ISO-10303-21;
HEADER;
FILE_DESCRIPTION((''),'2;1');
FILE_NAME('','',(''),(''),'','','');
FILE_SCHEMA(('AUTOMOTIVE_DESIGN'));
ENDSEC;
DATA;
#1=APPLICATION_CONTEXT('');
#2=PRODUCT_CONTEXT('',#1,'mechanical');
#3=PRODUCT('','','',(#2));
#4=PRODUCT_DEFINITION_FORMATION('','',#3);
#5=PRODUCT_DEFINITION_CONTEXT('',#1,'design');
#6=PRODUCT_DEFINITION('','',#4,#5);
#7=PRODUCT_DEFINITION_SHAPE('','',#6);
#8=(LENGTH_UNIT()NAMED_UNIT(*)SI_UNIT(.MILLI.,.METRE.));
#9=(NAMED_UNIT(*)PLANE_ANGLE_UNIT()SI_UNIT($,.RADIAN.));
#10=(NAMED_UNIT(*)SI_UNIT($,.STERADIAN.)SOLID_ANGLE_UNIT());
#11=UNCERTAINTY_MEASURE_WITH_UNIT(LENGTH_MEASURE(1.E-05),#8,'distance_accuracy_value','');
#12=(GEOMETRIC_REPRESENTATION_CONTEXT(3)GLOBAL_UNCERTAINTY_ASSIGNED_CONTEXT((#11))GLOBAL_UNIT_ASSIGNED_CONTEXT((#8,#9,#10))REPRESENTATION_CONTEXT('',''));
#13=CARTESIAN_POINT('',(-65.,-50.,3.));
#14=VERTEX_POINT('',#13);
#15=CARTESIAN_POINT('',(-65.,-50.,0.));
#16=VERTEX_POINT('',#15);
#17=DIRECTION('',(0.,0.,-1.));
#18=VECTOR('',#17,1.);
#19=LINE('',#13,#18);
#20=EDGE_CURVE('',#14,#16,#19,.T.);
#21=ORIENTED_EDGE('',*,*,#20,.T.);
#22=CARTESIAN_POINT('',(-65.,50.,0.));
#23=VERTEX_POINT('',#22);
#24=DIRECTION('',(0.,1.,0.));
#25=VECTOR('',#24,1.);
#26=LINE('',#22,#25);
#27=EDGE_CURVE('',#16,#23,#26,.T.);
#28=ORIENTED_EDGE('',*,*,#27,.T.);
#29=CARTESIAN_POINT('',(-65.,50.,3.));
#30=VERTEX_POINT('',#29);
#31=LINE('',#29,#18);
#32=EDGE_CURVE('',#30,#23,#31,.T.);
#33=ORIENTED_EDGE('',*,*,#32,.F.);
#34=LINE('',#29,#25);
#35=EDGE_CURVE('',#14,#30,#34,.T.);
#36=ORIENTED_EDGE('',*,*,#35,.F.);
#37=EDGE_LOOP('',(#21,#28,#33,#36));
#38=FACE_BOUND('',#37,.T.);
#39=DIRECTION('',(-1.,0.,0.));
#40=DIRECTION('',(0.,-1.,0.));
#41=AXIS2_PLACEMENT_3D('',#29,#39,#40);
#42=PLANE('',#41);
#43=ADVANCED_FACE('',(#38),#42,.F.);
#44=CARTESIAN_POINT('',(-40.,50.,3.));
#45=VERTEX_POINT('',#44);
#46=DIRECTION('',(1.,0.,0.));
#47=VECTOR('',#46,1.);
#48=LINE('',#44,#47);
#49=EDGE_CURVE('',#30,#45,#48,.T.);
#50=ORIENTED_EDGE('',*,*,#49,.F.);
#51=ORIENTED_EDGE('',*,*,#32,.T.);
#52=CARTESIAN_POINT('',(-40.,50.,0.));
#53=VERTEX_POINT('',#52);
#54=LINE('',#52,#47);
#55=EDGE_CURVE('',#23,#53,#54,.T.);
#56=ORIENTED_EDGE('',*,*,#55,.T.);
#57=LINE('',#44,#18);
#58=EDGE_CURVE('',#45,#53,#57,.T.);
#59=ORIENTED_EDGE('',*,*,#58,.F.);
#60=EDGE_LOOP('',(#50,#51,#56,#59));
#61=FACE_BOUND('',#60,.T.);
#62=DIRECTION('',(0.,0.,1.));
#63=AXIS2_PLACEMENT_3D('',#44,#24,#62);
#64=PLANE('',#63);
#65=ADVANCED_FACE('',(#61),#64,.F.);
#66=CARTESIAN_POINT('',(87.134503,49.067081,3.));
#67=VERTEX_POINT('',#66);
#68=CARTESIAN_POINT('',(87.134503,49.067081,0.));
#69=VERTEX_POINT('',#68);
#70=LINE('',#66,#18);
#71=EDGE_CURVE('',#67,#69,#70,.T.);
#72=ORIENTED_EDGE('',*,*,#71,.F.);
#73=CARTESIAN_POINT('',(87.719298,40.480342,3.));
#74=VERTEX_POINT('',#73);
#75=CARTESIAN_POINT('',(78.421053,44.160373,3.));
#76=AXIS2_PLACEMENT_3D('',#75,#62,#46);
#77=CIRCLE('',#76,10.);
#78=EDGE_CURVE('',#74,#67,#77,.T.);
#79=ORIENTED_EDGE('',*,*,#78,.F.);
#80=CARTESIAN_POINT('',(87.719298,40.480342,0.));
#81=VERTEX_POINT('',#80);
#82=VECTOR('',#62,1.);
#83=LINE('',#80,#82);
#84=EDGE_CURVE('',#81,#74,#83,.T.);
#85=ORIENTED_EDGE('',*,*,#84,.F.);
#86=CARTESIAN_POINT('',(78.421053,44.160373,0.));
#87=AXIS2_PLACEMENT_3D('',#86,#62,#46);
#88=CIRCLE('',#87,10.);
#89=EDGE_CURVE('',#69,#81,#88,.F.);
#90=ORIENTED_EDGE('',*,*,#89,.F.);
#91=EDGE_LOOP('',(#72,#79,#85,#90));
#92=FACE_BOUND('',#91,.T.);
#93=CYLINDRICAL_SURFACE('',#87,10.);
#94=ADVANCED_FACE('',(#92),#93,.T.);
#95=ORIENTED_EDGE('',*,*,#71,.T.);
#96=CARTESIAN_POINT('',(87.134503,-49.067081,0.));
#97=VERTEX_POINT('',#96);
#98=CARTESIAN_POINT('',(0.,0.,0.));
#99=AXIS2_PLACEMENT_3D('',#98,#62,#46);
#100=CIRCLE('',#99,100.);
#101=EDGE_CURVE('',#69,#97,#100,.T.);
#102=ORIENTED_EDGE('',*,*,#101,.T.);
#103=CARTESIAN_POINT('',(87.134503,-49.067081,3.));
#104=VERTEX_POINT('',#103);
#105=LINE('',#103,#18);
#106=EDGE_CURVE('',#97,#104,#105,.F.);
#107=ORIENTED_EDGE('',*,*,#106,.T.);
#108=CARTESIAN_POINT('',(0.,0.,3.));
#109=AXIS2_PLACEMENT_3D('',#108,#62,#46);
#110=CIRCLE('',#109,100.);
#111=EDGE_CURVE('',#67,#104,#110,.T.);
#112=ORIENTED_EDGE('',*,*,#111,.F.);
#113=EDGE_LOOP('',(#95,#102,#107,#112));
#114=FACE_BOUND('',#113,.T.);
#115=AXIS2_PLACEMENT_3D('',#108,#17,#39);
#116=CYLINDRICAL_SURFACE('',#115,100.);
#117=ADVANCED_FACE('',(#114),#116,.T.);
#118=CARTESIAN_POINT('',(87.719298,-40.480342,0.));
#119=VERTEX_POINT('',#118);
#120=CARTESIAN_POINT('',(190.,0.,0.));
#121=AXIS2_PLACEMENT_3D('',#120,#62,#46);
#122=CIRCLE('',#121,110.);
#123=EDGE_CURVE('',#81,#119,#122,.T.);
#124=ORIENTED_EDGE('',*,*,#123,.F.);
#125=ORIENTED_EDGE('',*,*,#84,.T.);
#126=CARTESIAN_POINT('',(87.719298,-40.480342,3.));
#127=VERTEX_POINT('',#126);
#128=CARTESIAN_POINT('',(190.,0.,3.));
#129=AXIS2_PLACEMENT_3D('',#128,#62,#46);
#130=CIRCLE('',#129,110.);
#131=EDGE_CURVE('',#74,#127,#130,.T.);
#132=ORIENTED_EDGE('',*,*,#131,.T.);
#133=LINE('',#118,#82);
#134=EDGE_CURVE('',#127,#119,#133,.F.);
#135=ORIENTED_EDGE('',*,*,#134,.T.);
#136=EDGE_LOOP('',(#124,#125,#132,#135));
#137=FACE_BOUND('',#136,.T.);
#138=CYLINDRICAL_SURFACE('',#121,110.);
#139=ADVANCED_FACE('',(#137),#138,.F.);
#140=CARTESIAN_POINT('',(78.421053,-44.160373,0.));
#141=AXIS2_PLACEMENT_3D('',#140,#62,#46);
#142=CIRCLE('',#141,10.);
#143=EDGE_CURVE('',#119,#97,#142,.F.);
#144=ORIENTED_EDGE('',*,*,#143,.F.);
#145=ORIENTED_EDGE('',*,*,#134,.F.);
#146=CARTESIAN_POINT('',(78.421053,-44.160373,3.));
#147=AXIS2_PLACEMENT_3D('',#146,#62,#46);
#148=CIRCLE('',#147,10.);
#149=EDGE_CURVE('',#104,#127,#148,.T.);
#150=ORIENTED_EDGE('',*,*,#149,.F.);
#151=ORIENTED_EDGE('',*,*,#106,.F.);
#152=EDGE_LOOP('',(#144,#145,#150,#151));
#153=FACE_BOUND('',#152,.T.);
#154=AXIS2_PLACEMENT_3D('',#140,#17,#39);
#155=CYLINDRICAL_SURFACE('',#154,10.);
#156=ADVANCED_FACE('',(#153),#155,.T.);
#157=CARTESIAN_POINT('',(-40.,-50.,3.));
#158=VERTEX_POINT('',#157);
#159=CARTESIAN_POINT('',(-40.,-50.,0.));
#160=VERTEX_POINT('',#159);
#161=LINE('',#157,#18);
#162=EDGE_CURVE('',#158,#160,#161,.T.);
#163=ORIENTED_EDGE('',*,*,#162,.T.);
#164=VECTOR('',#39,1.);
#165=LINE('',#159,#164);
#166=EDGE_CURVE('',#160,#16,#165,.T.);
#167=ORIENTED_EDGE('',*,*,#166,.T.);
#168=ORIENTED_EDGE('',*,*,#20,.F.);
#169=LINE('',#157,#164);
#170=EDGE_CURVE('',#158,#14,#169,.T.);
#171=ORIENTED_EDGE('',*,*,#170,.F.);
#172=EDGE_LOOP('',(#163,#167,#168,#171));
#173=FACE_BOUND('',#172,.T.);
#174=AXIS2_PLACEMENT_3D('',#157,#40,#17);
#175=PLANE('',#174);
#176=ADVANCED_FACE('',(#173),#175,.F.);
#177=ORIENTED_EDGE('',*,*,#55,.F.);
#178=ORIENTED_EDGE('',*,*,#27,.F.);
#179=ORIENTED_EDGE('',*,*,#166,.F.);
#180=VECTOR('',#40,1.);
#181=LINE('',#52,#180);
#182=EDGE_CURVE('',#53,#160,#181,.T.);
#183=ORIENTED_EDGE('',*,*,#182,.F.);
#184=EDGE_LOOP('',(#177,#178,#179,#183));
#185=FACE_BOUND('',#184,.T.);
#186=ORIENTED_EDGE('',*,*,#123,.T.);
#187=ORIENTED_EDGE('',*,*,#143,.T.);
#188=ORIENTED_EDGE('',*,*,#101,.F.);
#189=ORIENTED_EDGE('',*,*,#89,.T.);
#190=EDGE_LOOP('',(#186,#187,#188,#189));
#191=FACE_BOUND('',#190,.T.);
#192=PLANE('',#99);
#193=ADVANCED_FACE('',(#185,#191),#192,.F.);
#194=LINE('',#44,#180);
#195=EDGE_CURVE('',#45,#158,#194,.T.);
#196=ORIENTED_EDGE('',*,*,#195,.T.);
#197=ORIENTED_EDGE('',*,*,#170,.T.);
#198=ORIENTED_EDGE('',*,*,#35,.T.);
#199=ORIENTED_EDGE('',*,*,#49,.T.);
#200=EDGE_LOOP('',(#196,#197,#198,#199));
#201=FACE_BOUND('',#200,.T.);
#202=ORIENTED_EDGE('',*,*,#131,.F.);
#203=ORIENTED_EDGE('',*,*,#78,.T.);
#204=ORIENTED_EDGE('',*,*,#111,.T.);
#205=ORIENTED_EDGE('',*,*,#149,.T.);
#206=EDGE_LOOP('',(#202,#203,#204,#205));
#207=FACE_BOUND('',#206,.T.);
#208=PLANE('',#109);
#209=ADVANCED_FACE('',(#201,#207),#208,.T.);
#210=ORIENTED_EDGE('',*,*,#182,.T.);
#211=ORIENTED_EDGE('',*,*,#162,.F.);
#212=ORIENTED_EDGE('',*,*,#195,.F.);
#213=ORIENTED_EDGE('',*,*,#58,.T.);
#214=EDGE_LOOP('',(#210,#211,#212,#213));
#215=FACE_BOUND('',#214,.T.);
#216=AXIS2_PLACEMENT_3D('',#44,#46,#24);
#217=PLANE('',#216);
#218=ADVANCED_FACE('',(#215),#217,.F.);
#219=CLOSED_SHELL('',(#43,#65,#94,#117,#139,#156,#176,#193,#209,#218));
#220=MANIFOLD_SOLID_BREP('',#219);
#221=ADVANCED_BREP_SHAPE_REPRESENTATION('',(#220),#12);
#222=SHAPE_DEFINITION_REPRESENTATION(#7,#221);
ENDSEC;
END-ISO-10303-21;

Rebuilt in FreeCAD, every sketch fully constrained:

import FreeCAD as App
import Part
import Sketcher
Q = App.Units.Quantity


def edges_at(feature, points):
    """Names of the edges that pass closest to the given points."""
    edges = feature.Shape.Edges
    near = lambda p: min(range(len(edges)), key=lambda i: edges[i].distToShape(Part.Vertex(*p))[0])
    return sorted({f"Edge{near(p) + 1}" for p in points})

doc = App.newDocument("Part")
body = doc.addObject("PartDesign::Body", "Body")

# Sketch on XY plane
sketch1 = body.newObject("Sketcher::SketchObject", "Sketch")
sketch1.AttachmentSupport = (doc.getObject("XY_Plane"), [""])
sketch1.MapMode = "FlatFace"
sketch1.addGeometry(Part.Circle(App.Vector(0, 0, 0), App.Vector(0, 0, 1), 100), False)
sketch1.addConstraint(Sketcher.Constraint("Coincident", 0, 3, -1, 1))
sketch1.addConstraint(Sketcher.Constraint("Diameter", 0, Q("200 mm")))
pad1 = body.newObject("PartDesign::Pad", "Pad")
pad1.Profile = sketch1
pad1.Length = 3

# Sketch on XY plane
sketch2 = body.newObject("Sketcher::SketchObject", "Sketch001")
sketch2.AttachmentSupport = (doc.getObject("XY_Plane"), [""])
sketch2.MapMode = "FlatFace"
sketch2.AttachmentOffset = App.Placement(App.Vector(0, 0, 3), App.Rotation())
sketch2.addGeometry(Part.Circle(App.Vector(190, 0, 0), App.Vector(0, 0, 1), 110), False)
sketch2.addConstraint(Sketcher.Constraint("PointOnObject", 0, 3, -1))
sketch2.addConstraint(Sketcher.Constraint("Diameter", 0, Q("220 mm")))
sketch2.addConstraint(Sketcher.Constraint("DistanceX", -1, 1, 0, 3, Q("190 mm")))
pocket1 = body.newObject("PartDesign::Pocket", "Pocket")
pocket1.Profile = sketch2
pocket1.Length = 3
doc.recompute()

fillet = body.newObject("PartDesign::Fillet", "Fillet")
fillet.Base = (pocket1, edges_at(pocket1, [(89.474, -44.659, 1.5), (89.474, 44.659, 1.5)]))
fillet.Radius = 10

# Sketch on XY plane
sketch3 = body.newObject("Sketcher::SketchObject", "Sketch002")
sketch3.AttachmentSupport = (doc.getObject("XY_Plane"), [""])
sketch3.MapMode = "FlatFace"
sketch3.addGeometry(Part.LineSegment(App.Vector(-40, 50, 0), App.Vector(-40, -50, 0)), False)
sketch3.addGeometry(Part.LineSegment(App.Vector(-40, -50, 0), App.Vector(-65, -50, 0)), False)
sketch3.addGeometry(Part.LineSegment(App.Vector(-65, -50, 0), App.Vector(-65, 50, 0)), False)
sketch3.addGeometry(Part.LineSegment(App.Vector(-65, 50, 0), App.Vector(-40, 50, 0)), False)
sketch3.addConstraint(Sketcher.Constraint("Coincident", 0, 2, 1, 1))
sketch3.addConstraint(Sketcher.Constraint("Coincident", 1, 2, 2, 1))
sketch3.addConstraint(Sketcher.Constraint("Coincident", 2, 2, 3, 1))
sketch3.addConstraint(Sketcher.Constraint("Coincident", 3, 2, 0, 1))
sketch3.addConstraint(Sketcher.Constraint("Vertical", 0))
sketch3.addConstraint(Sketcher.Constraint("Horizontal", 1))
sketch3.addConstraint(Sketcher.Constraint("Vertical", 2))
sketch3.addConstraint(Sketcher.Constraint("Horizontal", 3))
sketch3.addConstraint(Sketcher.Constraint("DistanceX", 1, 2, 1, 1, Q("25 mm")))
sketch3.addConstraint(Sketcher.Constraint("DistanceY", 0, 2, 0, 1, Q("100 mm")))
sketch3.addConstraint(Sketcher.Constraint("DistanceX", 0, 2, -1, 1, Q("40 mm")))
sketch3.addConstraint(Sketcher.Constraint("DistanceY", 0, 2, -1, 1, Q("50 mm")))
pocket2 = body.newObject("PartDesign::Pocket", "Pocket001")
pocket2.Profile = sketch3
pocket2.Type = "ThroughAll"
pocket2.Reversed = True

doc.recompute()
